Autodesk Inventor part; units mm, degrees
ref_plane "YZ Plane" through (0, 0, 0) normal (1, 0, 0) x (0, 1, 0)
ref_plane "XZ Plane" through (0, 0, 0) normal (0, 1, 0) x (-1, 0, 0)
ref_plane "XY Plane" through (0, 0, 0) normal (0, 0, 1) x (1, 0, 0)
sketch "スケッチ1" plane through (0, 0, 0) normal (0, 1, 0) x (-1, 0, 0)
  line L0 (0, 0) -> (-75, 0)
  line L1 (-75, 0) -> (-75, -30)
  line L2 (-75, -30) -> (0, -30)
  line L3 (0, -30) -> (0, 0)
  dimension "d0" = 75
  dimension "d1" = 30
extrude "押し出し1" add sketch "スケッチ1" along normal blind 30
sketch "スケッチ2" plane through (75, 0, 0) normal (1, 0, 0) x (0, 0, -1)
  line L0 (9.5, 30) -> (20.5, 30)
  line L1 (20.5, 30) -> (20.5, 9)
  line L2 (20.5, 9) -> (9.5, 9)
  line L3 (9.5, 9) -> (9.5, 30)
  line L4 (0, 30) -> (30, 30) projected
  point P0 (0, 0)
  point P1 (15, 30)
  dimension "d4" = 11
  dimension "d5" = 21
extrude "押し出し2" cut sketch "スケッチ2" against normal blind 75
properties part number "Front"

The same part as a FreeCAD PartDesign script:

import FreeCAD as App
import Part
import Sketcher
from FreeCAD import Vector
Q = App.Units.Quantity

doc = App.newDocument("Part")
body = doc.addObject("PartDesign::Body", "Body")

sketch1 = doc.addObject("Sketcher::SketchObject", "Sketch")
body.addObject(sketch1)
sketch1.AttachmentSupport = (doc.XZ_Plane, [""])
sketch1.MapMode = "FlatFace"
sketch1.addGeometry([
    Part.LineSegment(Vector(0, -30, 0), Vector(0, 0, 0)),
    Part.LineSegment(Vector(0, 0, 0), Vector(75, 0, 0)),
    Part.LineSegment(Vector(75, 0, 0), Vector(75, -30, 0)),
    Part.LineSegment(Vector(75, -30, 0), Vector(0, -30, 0)),
], False)
sketch1.addConstraint([
    Sketcher.Constraint("Coincident", 0, 2, 1, 1),
    Sketcher.Constraint("Coincident", 1, 2, 2, 1),
    Sketcher.Constraint("Coincident", 2, 2, 3, 1),
    Sketcher.Constraint("Coincident", 3, 2, 0, 1),
    Sketcher.Constraint("Vertical", 0),
    Sketcher.Constraint("Horizontal", 1),
    Sketcher.Constraint("Vertical", 2),
    Sketcher.Constraint("Horizontal", 3),
    Sketcher.Constraint("Coincident", 0, 2, -1, 1),
    Sketcher.Constraint("DistanceX", 1, 1, 1, 2, Q("75 mm")),
    Sketcher.Constraint("DistanceY", 0, 1, 0, 2, Q("30 mm")),
])
pad1 = doc.addObject("PartDesign::Pad", "Pad")
body.addObject(pad1)
pad1.Profile = sketch1
pad1.Length = 30
pad1.Reversed = True

sketch2 = doc.addObject("Sketcher::SketchObject", "Sketch001")
body.addObject(sketch2)
sketch2.AttachmentSupport = (doc.YZ_Plane, [""])
sketch2.MapMode = "FlatFace"
sketch2.AttachmentOffset = App.Placement(Vector(0, 0, 75), App.Rotation())
sketch2.addGeometry([
    Part.LineSegment(Vector(30, -20.5, 0), Vector(30, -9.5, 0)),
    Part.LineSegment(Vector(30, -9.5, 0), Vector(9, -9.5, 0)),
    Part.LineSegment(Vector(9, -9.5, 0), Vector(9, -20.5, 0)),
    Part.LineSegment(Vector(9, -20.5, 0), Vector(30, -20.5, 0)),
], False)
sketch2.addConstraint([
    Sketcher.Constraint("Coincident", 0, 2, 1, 1),
    Sketcher.Constraint("Coincident", 1, 2, 2, 1),
    Sketcher.Constraint("Coincident", 2, 2, 3, 1),
    Sketcher.Constraint("Coincident", 3, 2, 0, 1),
    Sketcher.Constraint("Vertical", 0),
    Sketcher.Constraint("Horizontal", 1),
    Sketcher.Constraint("Vertical", 2),
    Sketcher.Constraint("Horizontal", 3),
    Sketcher.Constraint("DistanceX", 1, 2, 1, 1, Q("21 mm")),
    Sketcher.Constraint("DistanceY", 0, 1, 0, 2, Q("11 mm")),
    Sketcher.Constraint("DistanceX", -1, 1, 0, 2, Q("30 mm")),
    Sketcher.Constraint("DistanceY", 0, 2, -1, 1, Q("9.5 mm")),
])
pocket1 = doc.addObject("PartDesign::Pocket", "Pocket")
body.addObject(pocket1)
pocket1.Profile = sketch2
pocket1.Length = 75

doc.recompute()
